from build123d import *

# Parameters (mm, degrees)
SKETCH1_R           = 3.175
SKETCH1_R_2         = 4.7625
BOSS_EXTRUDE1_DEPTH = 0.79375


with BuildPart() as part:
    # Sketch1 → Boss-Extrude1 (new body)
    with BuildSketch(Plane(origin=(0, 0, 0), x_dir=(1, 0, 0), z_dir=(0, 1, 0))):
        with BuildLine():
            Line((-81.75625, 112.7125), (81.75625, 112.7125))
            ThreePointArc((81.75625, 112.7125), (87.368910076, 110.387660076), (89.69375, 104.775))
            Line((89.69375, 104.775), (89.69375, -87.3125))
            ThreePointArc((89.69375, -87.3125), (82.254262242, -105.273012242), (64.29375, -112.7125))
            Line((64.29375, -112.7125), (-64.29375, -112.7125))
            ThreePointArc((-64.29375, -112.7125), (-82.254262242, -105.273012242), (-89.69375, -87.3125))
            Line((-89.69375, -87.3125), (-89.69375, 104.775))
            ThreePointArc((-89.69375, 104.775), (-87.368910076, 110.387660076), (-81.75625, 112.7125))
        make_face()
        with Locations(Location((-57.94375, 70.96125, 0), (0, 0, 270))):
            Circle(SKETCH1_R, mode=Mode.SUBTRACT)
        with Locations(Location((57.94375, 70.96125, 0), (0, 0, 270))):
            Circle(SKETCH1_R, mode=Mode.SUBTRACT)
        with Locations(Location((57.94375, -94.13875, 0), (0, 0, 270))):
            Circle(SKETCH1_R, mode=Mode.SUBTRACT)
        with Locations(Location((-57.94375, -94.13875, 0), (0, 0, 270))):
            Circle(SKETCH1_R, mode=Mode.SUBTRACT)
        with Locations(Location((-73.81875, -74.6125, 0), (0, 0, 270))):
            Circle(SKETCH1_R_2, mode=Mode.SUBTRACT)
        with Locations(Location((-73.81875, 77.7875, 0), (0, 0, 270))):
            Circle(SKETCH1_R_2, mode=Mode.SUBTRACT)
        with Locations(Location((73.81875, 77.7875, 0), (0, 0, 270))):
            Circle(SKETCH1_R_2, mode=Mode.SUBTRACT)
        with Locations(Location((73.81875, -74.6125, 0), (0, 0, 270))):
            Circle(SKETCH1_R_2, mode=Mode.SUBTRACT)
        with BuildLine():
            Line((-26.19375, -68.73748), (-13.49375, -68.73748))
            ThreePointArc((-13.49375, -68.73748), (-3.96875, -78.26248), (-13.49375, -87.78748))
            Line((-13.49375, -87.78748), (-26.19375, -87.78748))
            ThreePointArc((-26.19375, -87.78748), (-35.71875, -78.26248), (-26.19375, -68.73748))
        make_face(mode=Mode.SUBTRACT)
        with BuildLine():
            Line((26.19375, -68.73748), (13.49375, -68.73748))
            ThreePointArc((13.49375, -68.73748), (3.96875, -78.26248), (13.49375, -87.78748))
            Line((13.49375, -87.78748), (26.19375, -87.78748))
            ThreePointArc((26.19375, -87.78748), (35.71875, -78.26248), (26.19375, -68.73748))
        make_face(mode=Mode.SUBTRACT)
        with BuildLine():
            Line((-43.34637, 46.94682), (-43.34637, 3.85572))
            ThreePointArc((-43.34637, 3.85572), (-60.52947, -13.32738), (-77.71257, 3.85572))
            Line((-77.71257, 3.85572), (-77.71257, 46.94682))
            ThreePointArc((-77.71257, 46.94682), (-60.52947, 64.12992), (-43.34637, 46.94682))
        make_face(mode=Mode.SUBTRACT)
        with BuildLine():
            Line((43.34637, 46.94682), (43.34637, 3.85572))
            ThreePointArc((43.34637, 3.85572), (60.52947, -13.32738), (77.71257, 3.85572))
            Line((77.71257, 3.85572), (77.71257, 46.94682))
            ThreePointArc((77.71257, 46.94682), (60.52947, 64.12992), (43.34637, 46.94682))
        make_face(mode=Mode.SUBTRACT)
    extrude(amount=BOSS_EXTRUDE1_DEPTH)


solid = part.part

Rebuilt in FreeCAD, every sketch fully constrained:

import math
import FreeCAD as App
import Part
import Sketcher
from FreeCAD import Vector
Q = App.Units.Quantity

doc = App.newDocument("Part")
body = doc.addObject("PartDesign::Body", "Body")

# Sketch on XZ plane
sketch1 = body.newObject("Sketcher::SketchObject", "Sketch")
sketch1.AttachmentSupport = (doc.getObject("XZ_Plane"), [""])
sketch1.MapMode = "FlatFace"
sketch1.addGeometry(Part.LineSegment(Vector(81.8, -112.7, 0), Vector(-81.8, -112.7, 0)), False)
sketch1.addGeometry(Part.ArcOfCircle(Part.Circle(Vector(-81.8, -104.8, 0), Vector(0, 0, 1), 7.9), math.radians(180), math.radians(270)), False)
sketch1.addGeometry(Part.LineSegment(Vector(-89.7, -104.8, 0), Vector(-89.7, 87.3, 0)), False)
sketch1.addGeometry(Part.ArcOfCircle(Part.Circle(Vector(-64.3, 87.3, 0), Vector(0, 0, 1), 25.4), math.radians(90), math.radians(180)), False)
sketch1.addGeometry(Part.LineSegment(Vector(-64.3, 112.7, 0), Vector(64.3, 112.7, 0)), False)
sketch1.addGeometry(Part.ArcOfCircle(Part.Circle(Vector(64.3, 87.3, 0), Vector(0, 0, 1), 25.4), math.radians(0), math.radians(90)), False)
sketch1.addGeometry(Part.LineSegment(Vector(89.7, 87.3, 0), Vector(89.7, -104.8, 0)), False)
sketch1.addGeometry(Part.ArcOfCircle(Part.Circle(Vector(81.8, -104.8, 0), Vector(0, 0, 1), 7.9), math.radians(-90), math.radians(0)), False)
sketch1.addGeometry(Part.Circle(Vector(57.9, 94.1, 0), Vector(0, 0, 1), 3.2), False)
sketch1.addGeometry(Part.Circle(Vector(73.8, 74.6, 0), Vector(0, 0, 1), 4.8), False)
sketch1.addGeometry(Part.ArcOfCircle(Part.Circle(Vector(26.2, 78.3, 0), Vector(0, 0, 1), 9.5), math.radians(-90), math.radians(90)), False)
sketch1.addGeometry(Part.LineSegment(Vector(26.2, 87.8, 0), Vector(13.5, 87.8, 0)), False)
sketch1.addGeometry(Part.ArcOfCircle(Part.Circle(Vector(13.5, 78.3, 0), Vector(0, 0, 1), 9.5), math.radians(90), math.radians(270)), False)
sketch1.addGeometry(Part.LineSegment(Vector(13.5, 68.7, 0), Vector(26.2, 68.7, 0)), False)
sketch1.addGeometry(Part.LineSegment(Vector(-26.2, 68.7, 0), Vector(-13.5, 68.7, 0)), False)
sketch1.addGeometry(Part.ArcOfCircle(Part.Circle(Vector(-13.5, 78.3, 0), Vector(0, 0, 1), 9.5), math.radians(-90), math.radians(90)), False)
sketch1.addGeometry(Part.LineSegment(Vector(-13.5, 87.8, 0), Vector(-26.2, 87.8, 0)), False)
sketch1.addGeometry(Part.ArcOfCircle(Part.Circle(Vector(-26.2, 78.3, 0), Vector(0, 0, 1), 9.5), math.radians(90), math.radians(270)), False)
sketch1.addGeometry(Part.Circle(Vector(-57.9, 94.1, 0), Vector(0, 0, 1), 3.2), False)
sketch1.addGeometry(Part.Circle(Vector(-73.8, 74.6, 0), Vector(0, 0, 1), 4.8), False)
sketch1.addGeometry(Part.ArcOfCircle(Part.Circle(Vector(60.5, -46.9, 0), Vector(0, 0, 1), 17.2), math.radians(180), math.radians(360)), False)
sketch1.addGeometry(Part.LineSegment(Vector(77.7, -46.9, 0), Vector(77.7, -3.9, 0)), False)
sketch1.addGeometry(Part.ArcOfCircle(Part.Circle(Vector(60.5, -3.9, 0), Vector(0, 0, 1), 17.2), math.radians(0), math.radians(180)), False)
sketch1.addGeometry(Part.LineSegment(Vector(43.3, -3.9, 0), Vector(43.3, -46.9, 0)), False)
sketch1.addGeometry(Part.Circle(Vector(73.8, -77.8, 0), Vector(0, 0, 1), 4.8), False)
sketch1.addGeometry(Part.Circle(Vector(57.9, -71, 0), Vector(0, 0, 1), 3.2), False)
sketch1.addGeometry(Part.LineSegment(Vector(-43.3, -46.9, 0), Vector(-43.3, -3.9, 0)), False)
sketch1.addGeometry(Part.ArcOfCircle(Part.Circle(Vector(-60.5, -3.9, 0), Vector(0, 0, 1), 17.2), math.radians(0), math.radians(180)), False)
sketch1.addGeometry(Part.LineSegment(Vector(-77.7, -3.9, 0), Vector(-77.7, -46.9, 0)), False)
sketch1.addGeometry(Part.ArcOfCircle(Part.Circle(Vector(-60.5, -46.9, 0), Vector(0, 0, 1), 17.2), math.radians(180), math.radians(360)), False)
sketch1.addGeometry(Part.Circle(Vector(-57.9, -71, 0), Vector(0, 0, 1), 3.2), False)
sketch1.addGeometry(Part.Circle(Vector(-73.8, -77.8, 0), Vector(0, 0, 1), 4.8), False)
sketch1.addConstraint(Sketcher.Constraint("Tangent", 0, 2, 1, 2))
sketch1.addConstraint(Sketcher.Constraint("Tangent", 1, 1, 2, 1))
sketch1.addConstraint(Sketcher.Constraint("Tangent", 2, 2, 3, 2))
sketch1.addConstraint(Sketcher.Constraint("Tangent", 3, 1, 4, 1))
sketch1.addConstraint(Sketcher.Constraint("Tangent", 4, 2, 5, 2))
sketch1.addConstraint(Sketcher.Constraint("Tangent", 5, 1, 6, 1))
sketch1.addConstraint(Sketcher.Constraint("Tangent", 6, 2, 7, 2))
sketch1.addConstraint(Sketcher.Constraint("Tangent", 7, 1, 0, 1))
sketch1.addConstraint(Sketcher.Constraint("Tangent", 10, 2, 11, 1))
sketch1.addConstraint(Sketcher.Constraint("Tangent", 11, 2, 12, 1))
sketch1.addConstraint(Sketcher.Constraint("Tangent", 12, 2, 13, 1))
sketch1.addConstraint(Sketcher.Constraint("Tangent", 13, 2, 10, 1))
sketch1.addConstraint(Sketcher.Constraint("Tangent", 14, 2, 15, 1))
sketch1.addConstraint(Sketcher.Constraint("Tangent", 15, 2, 16, 1))
sketch1.addConstraint(Sketcher.Constraint("Tangent", 16, 2, 17, 1))
sketch1.addConstraint(Sketcher.Constraint("Tangent", 17, 2, 14, 1))
sketch1.addConstraint(Sketcher.Constraint("Tangent", 20, 2, 21, 1))
sketch1.addConstraint(Sketcher.Constraint("Tangent", 21, 2, 22, 1))
sketch1.addConstraint(Sketcher.Constraint("Tangent", 22, 2, 23, 1))
sketch1.addConstraint(Sketcher.Constraint("Tangent", 23, 2, 20, 1))
sketch1.addConstraint(Sketcher.Constraint("Tangent", 26, 2, 27, 1))
sketch1.addConstraint(Sketcher.Constraint("Tangent", 27, 2, 28, 1))
sketch1.addConstraint(Sketcher.Constraint("Tangent", 28, 2, 29, 1))
sketch1.addConstraint(Sketcher.Constraint("Tangent", 29, 2, 26, 1))
sketch1.addConstraint(Sketcher.Constraint("Horizontal", 0))
sketch1.addConstraint(Sketcher.Constraint("Vertical", 2))
sketch1.addConstraint(Sketcher.Constraint("Horizontal", 4))
sketch1.addConstraint(Sketcher.Constraint("Vertical", 6))
sketch1.addConstraint(Sketcher.Constraint("Horizontal", 11))
sketch1.addConstraint(Sketcher.Constraint("Horizontal", 13))
sketch1.addConstraint(Sketcher.Constraint("Horizontal", 14))
sketch1.addConstraint(Sketcher.Constraint("Horizontal", 16))
sketch1.addConstraint(Sketcher.Constraint("Vertical", 21))
sketch1.addConstraint(Sketcher.Constraint("Vertical", 23))
sketch1.addConstraint(Sketcher.Constraint("Vertical", 26))
sketch1.addConstraint(Sketcher.Constraint("Vertical", 28))
sketch1.addConstraint(Sketcher.Constraint("Equal", 3, 5))
sketch1.addConstraint(Sketcher.Constraint("Equal", 1, 7))
sketch1.addConstraint(Sketcher.Constraint("Equal", 12, 15))
sketch1.addConstraint(Sketcher.Constraint("Equal", 8, 18))
sketch1.addConstraint(Sketcher.Constraint("Equal", 9, 19))
sketch1.addConstraint(Sketcher.Constraint("Equal", 19, 24))
sketch1.addConstraint(Sketcher.Constraint("Equal", 18, 25))
sketch1.addConstraint(Sketcher.Constraint("Equal", 22, 27))
sketch1.addConstraint(Sketcher.Constraint("Equal", 25, 30))
sketch1.addConstraint(Sketcher.Constraint("Equal", 24, 31))
sketch1.addConstraint(Sketcher.Constraint("Symmetric", 12, 3, 15, 3, -2))
sketch1.addConstraint(Sketcher.Constraint("Symmetric", 8, 3, 18, 3, -2))
sketch1.addConstraint(Sketcher.Constraint("Symmetric", 9, 3, 19, 3, -2))
sketch1.addConstraint(Sketcher.Constraint("Symmetric", 22, 3, 27, 3, -2))
sketch1.addConstraint(Sketcher.Constraint("Symmetric", 25, 3, 30, 3, -2))
sketch1.addConstraint(Sketcher.Constraint("Symmetric", 24, 3, 31, 3, -2))
sketch1.addConstraint(Sketcher.Constraint("Horizontal", 20, 3, 29, 3))
sketch1.addConstraint(Sketcher.Constraint("Vertical", 9, 3, 24, 3))
sketch1.addConstraint(Sketcher.Constraint("Vertical", 8, 3, 25, 3))
sketch1.addConstraint(Sketcher.Constraint("Equal", 13, 14))
sketch1.addConstraint(Sketcher.Constraint("Radius", 3, Q("1 in")))
sketch1.addConstraint(Sketcher.Constraint("Diameter", 8, Q("0.25 in")))
sketch1.addConstraint(Sketcher.Constraint("Diameter", 9, Q("0.375 in")))
sketch1.addConstraint(Sketcher.Constraint("DistanceX", 11, 2, 11, 1, Q("0.5 in")))
sketch1.addConstraint(Sketcher.Constraint("Radius", 1, Q("0.3125 in")))
sketch1.addConstraint(Sketcher.Constraint("Radius", 10, Q("0.375 in")))
sketch1.addConstraint(Sketcher.Constraint("DistanceX", 12, 3, 5, 3, Q("2 in")))
sketch1.addConstraint(Sketcher.Constraint("DistanceX", 3, 3, 15, 3, Q("2 in")))
sketch1.addConstraint(Sketcher.Constraint("DistanceY", 24, 3, 9, 3, Q("6 in")))
sketch1.addConstraint(Sketcher.Constraint("Radius", 20, Q("0.6765 in")))
sketch1.addConstraint(Sketcher.Constraint("DistanceX", 1, 3, 8, 3, Q("5.5 in")))
sketch1.addConstraint(Sketcher.Constraint("DistanceY", 9, 3, 5, 3, Q("0.5 in")))
sketch1.addConstraint(Sketcher.Constraint("DistanceX", 0, 2, 0, 1, Q("6.4375 in")))
sketch1.addConstraint(Sketcher.Constraint("DistanceY", 2, 1, 2, 2, Q("7.5625 in")))
sketch1.addConstraint(Sketcher.Constraint("DistanceY", 21, 1, 21, 2, Q("1.6965 in")))
sketch1.addConstraint(Sketcher.Constraint("DistanceY", 1, 3, -1, 1, Q("4.125 in")))
sketch1.addConstraint(Sketcher.Constraint("DistanceX", -1, 1, 9, 3, Q("2.90625 in")))
sketch1.addConstraint(Sketcher.Constraint("DistanceY", 22, 3, 10, 3, Q("3.233 in")))
sketch1.addConstraint(Sketcher.Constraint("DistanceY", -1, 1, 10, 3, Q("3.0812 in")))
sketch1.addConstraint(Sketcher.Constraint("DistanceX", 20, 3, 7, 3, Q("0.8357 in")))
sketch1.addConstraint(Sketcher.Constraint("DistanceY", -1, 1, 8, 3, 94.13875))
sketch1.addConstraint(Sketcher.Constraint("DistanceY", 25, 3, -1, 1, 70.96125))
pad1 = body.newObject("PartDesign::Pad", "Pad")
pad1.Profile = sketch1
pad1.Length = Q("0.03125 in")
pad1.Reversed = True

doc.recompute()
